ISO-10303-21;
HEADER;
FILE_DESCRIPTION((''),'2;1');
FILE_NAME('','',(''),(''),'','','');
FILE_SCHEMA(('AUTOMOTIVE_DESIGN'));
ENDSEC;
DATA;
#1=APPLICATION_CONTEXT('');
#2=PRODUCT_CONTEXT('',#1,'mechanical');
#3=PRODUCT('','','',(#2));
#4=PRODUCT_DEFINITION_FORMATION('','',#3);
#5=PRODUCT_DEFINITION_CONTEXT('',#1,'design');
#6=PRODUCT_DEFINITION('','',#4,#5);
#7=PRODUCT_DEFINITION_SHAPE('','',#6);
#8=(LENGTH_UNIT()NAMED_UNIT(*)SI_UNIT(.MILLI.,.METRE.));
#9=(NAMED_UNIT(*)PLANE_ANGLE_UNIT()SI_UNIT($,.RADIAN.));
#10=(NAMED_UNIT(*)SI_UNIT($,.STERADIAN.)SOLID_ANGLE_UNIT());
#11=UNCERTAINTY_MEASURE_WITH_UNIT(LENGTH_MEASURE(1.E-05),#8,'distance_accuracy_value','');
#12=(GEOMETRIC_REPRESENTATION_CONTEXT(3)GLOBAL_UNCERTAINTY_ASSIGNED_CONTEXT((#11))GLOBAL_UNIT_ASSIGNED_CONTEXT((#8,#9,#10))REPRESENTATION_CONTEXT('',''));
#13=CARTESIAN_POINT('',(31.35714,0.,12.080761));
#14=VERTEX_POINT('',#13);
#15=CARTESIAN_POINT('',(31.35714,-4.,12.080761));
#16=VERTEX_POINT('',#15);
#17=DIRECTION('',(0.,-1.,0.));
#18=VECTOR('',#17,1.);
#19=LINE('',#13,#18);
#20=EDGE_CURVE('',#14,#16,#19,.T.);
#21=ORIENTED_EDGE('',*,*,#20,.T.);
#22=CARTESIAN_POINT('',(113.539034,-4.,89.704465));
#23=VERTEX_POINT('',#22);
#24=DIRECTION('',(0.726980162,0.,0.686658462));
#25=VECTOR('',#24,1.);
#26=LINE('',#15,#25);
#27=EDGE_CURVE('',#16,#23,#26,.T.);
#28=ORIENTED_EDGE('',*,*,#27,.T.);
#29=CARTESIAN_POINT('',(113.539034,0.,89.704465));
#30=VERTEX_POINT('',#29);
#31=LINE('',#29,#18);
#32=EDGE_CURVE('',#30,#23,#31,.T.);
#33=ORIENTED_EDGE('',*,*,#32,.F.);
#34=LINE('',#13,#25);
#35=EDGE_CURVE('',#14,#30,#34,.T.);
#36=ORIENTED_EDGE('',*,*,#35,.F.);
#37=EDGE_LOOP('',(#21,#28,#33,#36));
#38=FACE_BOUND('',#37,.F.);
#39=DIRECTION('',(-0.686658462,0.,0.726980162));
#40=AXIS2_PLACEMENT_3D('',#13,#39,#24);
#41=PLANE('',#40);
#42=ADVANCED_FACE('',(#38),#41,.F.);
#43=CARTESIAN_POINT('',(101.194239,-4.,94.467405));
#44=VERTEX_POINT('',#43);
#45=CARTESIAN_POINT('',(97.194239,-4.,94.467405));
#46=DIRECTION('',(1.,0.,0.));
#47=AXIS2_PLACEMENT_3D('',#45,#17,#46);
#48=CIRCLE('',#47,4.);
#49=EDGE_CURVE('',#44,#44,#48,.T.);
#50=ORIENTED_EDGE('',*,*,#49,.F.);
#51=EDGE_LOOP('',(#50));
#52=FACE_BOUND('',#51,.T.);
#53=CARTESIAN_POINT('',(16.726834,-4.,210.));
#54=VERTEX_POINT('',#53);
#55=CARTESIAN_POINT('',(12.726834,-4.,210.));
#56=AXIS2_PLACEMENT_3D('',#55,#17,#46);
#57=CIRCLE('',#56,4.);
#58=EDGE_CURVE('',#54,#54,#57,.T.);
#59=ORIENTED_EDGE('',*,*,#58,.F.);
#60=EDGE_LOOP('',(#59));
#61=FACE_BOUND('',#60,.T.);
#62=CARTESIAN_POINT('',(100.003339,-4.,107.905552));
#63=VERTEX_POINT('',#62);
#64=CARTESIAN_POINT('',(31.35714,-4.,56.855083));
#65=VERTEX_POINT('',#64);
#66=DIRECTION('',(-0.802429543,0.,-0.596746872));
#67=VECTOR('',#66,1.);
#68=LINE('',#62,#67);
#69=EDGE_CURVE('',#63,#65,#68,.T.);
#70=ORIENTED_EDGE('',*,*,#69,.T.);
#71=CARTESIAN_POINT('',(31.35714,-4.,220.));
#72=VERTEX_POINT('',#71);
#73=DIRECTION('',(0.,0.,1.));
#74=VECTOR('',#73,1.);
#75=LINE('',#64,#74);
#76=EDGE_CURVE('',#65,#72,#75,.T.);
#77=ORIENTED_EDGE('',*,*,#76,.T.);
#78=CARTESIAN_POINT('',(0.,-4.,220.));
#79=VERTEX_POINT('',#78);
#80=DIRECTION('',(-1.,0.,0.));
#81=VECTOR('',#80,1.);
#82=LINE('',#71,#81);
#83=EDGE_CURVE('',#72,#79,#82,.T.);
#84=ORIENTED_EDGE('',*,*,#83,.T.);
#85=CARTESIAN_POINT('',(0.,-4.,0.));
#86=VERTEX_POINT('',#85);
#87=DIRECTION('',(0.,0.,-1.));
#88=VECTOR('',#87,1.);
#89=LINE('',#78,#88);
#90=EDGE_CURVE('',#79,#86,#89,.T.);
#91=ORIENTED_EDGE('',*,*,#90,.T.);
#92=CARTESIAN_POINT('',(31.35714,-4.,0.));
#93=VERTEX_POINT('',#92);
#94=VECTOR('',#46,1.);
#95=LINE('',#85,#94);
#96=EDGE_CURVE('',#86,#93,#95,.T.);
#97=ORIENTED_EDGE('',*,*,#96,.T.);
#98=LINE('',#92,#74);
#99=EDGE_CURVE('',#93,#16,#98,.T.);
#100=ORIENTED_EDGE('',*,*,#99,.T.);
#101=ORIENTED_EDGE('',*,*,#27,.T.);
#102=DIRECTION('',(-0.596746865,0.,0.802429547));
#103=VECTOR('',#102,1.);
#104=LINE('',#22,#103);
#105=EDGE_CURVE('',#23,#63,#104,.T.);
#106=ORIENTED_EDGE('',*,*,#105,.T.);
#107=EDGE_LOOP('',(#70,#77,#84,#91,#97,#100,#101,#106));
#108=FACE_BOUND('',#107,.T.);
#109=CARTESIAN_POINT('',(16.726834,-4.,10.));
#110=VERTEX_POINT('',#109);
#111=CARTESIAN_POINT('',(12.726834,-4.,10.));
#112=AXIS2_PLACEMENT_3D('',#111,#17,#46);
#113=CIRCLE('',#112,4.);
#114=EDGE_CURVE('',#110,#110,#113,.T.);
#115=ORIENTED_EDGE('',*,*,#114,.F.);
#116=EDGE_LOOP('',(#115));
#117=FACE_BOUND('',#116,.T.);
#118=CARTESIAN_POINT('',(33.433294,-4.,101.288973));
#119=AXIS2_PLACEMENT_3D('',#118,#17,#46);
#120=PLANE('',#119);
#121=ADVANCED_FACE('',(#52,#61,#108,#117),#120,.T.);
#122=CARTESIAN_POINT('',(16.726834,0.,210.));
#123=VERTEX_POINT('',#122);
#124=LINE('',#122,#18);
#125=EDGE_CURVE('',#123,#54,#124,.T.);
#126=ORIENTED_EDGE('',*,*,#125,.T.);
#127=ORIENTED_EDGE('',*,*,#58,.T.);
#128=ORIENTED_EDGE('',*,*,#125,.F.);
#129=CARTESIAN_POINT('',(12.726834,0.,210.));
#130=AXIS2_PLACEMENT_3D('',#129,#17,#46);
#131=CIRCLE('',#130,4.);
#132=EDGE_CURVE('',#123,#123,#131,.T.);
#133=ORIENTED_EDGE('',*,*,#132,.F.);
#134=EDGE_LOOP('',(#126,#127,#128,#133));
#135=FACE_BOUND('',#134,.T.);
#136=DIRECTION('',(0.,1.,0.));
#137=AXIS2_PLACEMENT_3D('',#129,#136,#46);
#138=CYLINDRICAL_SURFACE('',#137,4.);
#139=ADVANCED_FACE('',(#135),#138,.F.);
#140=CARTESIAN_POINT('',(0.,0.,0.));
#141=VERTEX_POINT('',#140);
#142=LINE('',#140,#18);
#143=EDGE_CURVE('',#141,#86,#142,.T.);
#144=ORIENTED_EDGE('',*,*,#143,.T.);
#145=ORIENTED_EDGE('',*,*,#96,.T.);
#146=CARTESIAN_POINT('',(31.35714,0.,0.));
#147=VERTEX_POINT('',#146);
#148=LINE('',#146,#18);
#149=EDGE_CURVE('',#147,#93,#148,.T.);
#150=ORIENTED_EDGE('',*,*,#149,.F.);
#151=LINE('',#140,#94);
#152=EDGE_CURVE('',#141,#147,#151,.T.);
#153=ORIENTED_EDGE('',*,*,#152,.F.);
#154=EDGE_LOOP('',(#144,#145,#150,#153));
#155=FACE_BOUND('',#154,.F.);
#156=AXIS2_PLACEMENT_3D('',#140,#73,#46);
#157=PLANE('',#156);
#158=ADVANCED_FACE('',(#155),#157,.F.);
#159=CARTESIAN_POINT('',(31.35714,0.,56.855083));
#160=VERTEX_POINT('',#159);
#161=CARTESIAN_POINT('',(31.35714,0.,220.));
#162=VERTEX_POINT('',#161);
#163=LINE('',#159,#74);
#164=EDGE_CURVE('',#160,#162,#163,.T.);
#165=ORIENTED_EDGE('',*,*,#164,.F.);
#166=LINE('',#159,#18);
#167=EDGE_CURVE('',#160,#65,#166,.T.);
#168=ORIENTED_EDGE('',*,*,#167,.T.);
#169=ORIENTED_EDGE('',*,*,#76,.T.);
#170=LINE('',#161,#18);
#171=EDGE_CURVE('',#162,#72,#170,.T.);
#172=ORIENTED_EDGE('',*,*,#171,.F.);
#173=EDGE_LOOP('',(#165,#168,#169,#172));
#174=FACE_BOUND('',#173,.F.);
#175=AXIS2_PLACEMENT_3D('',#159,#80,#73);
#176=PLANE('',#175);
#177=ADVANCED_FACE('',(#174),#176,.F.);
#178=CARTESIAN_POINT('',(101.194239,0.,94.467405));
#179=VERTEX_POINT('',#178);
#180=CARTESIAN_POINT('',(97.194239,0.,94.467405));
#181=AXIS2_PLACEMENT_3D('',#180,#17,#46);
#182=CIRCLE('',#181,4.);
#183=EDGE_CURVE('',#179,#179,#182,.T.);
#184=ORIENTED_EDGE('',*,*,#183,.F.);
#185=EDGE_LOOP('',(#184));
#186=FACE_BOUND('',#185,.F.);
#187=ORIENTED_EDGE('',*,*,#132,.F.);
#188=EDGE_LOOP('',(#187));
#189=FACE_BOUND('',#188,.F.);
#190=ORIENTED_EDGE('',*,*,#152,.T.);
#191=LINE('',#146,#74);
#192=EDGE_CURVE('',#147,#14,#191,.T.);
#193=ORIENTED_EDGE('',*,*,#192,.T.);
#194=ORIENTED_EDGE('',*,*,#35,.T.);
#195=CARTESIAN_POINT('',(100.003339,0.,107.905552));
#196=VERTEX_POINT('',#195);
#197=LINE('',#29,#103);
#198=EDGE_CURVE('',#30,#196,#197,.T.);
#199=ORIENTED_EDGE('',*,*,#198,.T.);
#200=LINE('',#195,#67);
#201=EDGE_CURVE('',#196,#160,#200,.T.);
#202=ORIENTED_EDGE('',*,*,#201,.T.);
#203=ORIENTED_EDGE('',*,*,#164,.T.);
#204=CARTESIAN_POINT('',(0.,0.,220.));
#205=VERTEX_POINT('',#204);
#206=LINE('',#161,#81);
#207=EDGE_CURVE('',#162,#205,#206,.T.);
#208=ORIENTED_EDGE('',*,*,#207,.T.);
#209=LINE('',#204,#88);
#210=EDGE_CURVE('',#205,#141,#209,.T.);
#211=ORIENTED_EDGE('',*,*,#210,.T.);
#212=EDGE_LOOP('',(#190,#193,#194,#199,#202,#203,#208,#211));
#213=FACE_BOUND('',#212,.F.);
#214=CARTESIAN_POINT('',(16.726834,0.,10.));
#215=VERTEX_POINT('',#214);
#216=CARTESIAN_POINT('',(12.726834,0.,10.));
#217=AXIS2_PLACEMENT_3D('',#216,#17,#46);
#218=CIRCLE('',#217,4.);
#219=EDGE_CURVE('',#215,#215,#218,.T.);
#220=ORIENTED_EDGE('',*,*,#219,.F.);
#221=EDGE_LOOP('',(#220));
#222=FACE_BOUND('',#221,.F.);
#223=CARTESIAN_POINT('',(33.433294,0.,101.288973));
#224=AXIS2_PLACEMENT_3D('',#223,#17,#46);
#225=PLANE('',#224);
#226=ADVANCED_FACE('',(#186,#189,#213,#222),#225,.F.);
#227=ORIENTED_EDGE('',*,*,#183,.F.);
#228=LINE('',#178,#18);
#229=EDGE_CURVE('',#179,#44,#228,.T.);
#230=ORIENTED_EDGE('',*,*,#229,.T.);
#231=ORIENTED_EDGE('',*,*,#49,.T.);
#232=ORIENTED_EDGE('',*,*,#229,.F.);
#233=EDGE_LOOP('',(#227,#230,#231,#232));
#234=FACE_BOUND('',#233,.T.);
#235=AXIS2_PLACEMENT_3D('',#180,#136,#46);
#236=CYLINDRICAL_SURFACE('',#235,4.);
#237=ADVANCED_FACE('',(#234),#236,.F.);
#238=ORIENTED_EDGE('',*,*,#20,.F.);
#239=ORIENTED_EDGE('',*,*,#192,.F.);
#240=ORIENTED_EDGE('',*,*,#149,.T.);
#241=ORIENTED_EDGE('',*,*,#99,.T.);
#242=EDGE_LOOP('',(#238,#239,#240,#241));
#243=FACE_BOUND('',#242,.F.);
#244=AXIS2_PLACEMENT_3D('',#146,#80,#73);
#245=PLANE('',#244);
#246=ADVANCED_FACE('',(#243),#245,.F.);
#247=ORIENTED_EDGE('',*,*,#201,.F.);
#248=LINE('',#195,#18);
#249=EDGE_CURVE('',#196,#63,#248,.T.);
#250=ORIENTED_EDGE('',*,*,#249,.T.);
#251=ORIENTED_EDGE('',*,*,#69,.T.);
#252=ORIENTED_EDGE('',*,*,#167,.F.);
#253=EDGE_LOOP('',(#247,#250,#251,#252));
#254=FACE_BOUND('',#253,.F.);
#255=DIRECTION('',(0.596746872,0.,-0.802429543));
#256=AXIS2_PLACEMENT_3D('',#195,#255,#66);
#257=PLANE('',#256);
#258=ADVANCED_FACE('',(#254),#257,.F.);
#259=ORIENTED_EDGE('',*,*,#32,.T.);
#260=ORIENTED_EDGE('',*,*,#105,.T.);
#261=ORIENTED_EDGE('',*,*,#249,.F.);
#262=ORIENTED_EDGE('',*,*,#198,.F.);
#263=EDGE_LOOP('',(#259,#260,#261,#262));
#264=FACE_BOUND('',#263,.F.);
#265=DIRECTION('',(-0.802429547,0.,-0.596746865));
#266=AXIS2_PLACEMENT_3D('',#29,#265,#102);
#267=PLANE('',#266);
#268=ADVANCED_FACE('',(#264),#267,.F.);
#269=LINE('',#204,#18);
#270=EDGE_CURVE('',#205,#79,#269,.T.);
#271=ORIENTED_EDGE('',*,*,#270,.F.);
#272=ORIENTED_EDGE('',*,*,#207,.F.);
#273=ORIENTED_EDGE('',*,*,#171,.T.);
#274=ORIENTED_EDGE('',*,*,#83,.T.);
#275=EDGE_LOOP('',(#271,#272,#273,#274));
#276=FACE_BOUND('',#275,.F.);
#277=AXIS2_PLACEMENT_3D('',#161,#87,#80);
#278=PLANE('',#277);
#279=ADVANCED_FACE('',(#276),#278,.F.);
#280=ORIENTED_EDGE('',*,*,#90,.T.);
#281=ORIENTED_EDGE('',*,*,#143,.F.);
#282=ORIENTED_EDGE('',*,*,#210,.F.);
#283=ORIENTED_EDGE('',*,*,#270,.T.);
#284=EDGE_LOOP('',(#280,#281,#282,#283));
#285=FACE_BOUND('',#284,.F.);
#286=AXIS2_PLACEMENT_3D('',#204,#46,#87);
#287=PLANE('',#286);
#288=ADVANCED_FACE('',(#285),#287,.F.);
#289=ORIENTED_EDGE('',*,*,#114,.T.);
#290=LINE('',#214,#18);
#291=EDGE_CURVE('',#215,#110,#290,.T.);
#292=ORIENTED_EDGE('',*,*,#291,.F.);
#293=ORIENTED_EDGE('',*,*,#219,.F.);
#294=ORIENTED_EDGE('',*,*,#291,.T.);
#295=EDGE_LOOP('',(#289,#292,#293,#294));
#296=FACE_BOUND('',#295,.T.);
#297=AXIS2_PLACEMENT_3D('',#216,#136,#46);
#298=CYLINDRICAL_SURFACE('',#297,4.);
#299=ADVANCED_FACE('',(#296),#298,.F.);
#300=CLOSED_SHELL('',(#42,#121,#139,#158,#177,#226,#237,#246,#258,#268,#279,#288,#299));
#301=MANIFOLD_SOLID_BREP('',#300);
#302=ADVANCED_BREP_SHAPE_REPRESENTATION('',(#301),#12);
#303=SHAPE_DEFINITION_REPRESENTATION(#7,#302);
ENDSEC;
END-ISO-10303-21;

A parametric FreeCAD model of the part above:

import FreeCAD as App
import Part
import Sketcher

doc = App.newDocument("Part")
body = doc.addObject("PartDesign::Body", "Body")

# Sketch on XZ plane
sketch1 = doc.addObject("Sketcher::SketchObject", "Sketch")
body.addObject(sketch1)
sketch1.AttachmentSupport = (doc.XZ_Plane, [""])
sketch1.MapMode = "FlatFace"
sketch1.addGeometry([
    Part.LineSegment(App.Vector(0, 220, 0), App.Vector(0, 0, 0)),  # 0
    Part.LineSegment(App.Vector(0, 0, 0), App.Vector(31.4, 0, 0)),  # 1
    Part.LineSegment(App.Vector(31.4, 0, 0), App.Vector(31.4, 12.1, 0)),  # 2
    Part.LineSegment(App.Vector(31.4, 12.1, 0), App.Vector(113.5, 89.7, 0)),  # 3
    Part.LineSegment(App.Vector(113.5, 89.7, 0), App.Vector(100, 107.9, 0)),  # 4
    Part.LineSegment(App.Vector(100, 107.9, 0), App.Vector(31.4, 56.9, 0)),  # 5
    Part.LineSegment(App.Vector(31.4, 56.9, 0), App.Vector(31.4, 220, 0)),  # 6
    Part.LineSegment(App.Vector(31.4, 220, 0), App.Vector(0, 220, 0)),  # 7
    Part.Circle(App.Vector(12.7, 10, 0), App.Vector(0, 0, 1), 4),  # 8
    Part.Circle(App.Vector(97.2, 94.5, 0), App.Vector(0, 0, 1), 4),  # 9
    Part.Circle(App.Vector(12.7, 210, 0), App.Vector(0, 0, 1), 4),  # 10
], False)
sketch1.addConstraint([
    Sketcher.Constraint("Coincident", 0, 2, 1, 1),
    Sketcher.Constraint("Coincident", 1, 2, 2, 1),
    Sketcher.Constraint("Coincident", 2, 2, 3, 1),
    Sketcher.Constraint("Coincident", 3, 2, 4, 1),
    Sketcher.Constraint("Coincident", 4, 2, 5, 1),
    Sketcher.Constraint("Coincident", 5, 2, 6, 1),
    Sketcher.Constraint("Coincident", 6, 2, 7, 1),
    Sketcher.Constraint("Coincident", 7, 2, 0, 1),
    Sketcher.Constraint("Vertical", 0),
    Sketcher.Constraint("Horizontal", 1),
    Sketcher.Constraint("Vertical", 2),
    Sketcher.Constraint("Vertical", 6),
    Sketcher.Constraint("Horizontal", 7),
    Sketcher.Constraint("Coincident", 0, 2, -1, 1),
    Sketcher.Constraint("Equal", 8, 9),
    Sketcher.Constraint("Equal", 9, 10),
    Sketcher.Constraint("Perpendicular", 4, 5),
    Sketcher.Constraint("Vertical", 8, 3, 10, 3),
    Sketcher.Constraint("Vertical", 2, 2, 5, 2),
    Sketcher.Constraint("Diameter", 8, 8.0),
    Sketcher.Constraint("DistanceY", 0, 2, 0, 1, 220.0),
    Sketcher.Constraint("DistanceY", -1, 1, 8, 3, 10.0),
    Sketcher.Constraint("DistanceY", -1, 1, 10, 3, 210.0),
    Sketcher.Constraint("DistanceX", 1, 1, 1, 2, 31.35714),
    Sketcher.Constraint("DistanceY", 2, 1, 2, 2, 12.080761),
    Sketcher.Constraint("DistanceX", 1, 2, 9, 3, 65.837099),
    Sketcher.Constraint("DistanceX", 8, 3, 3, 2, 100.8122),
    Sketcher.Constraint("DistanceX", 9, 3, 4, 2, 2.8091),
    Sketcher.Constraint("Distance", 3, 113.04558),
    Sketcher.Constraint("DistanceY", 6, 1, 6, 2, 163.144917),
    Sketcher.Constraint("DistanceY", -1, 1, 4, 2, 107.905552),
    Sketcher.Constraint("DistanceY", 3, 2, 9, 3, 4.76294),
])
pad1 = doc.addObject("PartDesign::Pad", "Pad")
body.addObject(pad1)
pad1.Profile = sketch1
pad1.Length = 4

doc.recompute()
